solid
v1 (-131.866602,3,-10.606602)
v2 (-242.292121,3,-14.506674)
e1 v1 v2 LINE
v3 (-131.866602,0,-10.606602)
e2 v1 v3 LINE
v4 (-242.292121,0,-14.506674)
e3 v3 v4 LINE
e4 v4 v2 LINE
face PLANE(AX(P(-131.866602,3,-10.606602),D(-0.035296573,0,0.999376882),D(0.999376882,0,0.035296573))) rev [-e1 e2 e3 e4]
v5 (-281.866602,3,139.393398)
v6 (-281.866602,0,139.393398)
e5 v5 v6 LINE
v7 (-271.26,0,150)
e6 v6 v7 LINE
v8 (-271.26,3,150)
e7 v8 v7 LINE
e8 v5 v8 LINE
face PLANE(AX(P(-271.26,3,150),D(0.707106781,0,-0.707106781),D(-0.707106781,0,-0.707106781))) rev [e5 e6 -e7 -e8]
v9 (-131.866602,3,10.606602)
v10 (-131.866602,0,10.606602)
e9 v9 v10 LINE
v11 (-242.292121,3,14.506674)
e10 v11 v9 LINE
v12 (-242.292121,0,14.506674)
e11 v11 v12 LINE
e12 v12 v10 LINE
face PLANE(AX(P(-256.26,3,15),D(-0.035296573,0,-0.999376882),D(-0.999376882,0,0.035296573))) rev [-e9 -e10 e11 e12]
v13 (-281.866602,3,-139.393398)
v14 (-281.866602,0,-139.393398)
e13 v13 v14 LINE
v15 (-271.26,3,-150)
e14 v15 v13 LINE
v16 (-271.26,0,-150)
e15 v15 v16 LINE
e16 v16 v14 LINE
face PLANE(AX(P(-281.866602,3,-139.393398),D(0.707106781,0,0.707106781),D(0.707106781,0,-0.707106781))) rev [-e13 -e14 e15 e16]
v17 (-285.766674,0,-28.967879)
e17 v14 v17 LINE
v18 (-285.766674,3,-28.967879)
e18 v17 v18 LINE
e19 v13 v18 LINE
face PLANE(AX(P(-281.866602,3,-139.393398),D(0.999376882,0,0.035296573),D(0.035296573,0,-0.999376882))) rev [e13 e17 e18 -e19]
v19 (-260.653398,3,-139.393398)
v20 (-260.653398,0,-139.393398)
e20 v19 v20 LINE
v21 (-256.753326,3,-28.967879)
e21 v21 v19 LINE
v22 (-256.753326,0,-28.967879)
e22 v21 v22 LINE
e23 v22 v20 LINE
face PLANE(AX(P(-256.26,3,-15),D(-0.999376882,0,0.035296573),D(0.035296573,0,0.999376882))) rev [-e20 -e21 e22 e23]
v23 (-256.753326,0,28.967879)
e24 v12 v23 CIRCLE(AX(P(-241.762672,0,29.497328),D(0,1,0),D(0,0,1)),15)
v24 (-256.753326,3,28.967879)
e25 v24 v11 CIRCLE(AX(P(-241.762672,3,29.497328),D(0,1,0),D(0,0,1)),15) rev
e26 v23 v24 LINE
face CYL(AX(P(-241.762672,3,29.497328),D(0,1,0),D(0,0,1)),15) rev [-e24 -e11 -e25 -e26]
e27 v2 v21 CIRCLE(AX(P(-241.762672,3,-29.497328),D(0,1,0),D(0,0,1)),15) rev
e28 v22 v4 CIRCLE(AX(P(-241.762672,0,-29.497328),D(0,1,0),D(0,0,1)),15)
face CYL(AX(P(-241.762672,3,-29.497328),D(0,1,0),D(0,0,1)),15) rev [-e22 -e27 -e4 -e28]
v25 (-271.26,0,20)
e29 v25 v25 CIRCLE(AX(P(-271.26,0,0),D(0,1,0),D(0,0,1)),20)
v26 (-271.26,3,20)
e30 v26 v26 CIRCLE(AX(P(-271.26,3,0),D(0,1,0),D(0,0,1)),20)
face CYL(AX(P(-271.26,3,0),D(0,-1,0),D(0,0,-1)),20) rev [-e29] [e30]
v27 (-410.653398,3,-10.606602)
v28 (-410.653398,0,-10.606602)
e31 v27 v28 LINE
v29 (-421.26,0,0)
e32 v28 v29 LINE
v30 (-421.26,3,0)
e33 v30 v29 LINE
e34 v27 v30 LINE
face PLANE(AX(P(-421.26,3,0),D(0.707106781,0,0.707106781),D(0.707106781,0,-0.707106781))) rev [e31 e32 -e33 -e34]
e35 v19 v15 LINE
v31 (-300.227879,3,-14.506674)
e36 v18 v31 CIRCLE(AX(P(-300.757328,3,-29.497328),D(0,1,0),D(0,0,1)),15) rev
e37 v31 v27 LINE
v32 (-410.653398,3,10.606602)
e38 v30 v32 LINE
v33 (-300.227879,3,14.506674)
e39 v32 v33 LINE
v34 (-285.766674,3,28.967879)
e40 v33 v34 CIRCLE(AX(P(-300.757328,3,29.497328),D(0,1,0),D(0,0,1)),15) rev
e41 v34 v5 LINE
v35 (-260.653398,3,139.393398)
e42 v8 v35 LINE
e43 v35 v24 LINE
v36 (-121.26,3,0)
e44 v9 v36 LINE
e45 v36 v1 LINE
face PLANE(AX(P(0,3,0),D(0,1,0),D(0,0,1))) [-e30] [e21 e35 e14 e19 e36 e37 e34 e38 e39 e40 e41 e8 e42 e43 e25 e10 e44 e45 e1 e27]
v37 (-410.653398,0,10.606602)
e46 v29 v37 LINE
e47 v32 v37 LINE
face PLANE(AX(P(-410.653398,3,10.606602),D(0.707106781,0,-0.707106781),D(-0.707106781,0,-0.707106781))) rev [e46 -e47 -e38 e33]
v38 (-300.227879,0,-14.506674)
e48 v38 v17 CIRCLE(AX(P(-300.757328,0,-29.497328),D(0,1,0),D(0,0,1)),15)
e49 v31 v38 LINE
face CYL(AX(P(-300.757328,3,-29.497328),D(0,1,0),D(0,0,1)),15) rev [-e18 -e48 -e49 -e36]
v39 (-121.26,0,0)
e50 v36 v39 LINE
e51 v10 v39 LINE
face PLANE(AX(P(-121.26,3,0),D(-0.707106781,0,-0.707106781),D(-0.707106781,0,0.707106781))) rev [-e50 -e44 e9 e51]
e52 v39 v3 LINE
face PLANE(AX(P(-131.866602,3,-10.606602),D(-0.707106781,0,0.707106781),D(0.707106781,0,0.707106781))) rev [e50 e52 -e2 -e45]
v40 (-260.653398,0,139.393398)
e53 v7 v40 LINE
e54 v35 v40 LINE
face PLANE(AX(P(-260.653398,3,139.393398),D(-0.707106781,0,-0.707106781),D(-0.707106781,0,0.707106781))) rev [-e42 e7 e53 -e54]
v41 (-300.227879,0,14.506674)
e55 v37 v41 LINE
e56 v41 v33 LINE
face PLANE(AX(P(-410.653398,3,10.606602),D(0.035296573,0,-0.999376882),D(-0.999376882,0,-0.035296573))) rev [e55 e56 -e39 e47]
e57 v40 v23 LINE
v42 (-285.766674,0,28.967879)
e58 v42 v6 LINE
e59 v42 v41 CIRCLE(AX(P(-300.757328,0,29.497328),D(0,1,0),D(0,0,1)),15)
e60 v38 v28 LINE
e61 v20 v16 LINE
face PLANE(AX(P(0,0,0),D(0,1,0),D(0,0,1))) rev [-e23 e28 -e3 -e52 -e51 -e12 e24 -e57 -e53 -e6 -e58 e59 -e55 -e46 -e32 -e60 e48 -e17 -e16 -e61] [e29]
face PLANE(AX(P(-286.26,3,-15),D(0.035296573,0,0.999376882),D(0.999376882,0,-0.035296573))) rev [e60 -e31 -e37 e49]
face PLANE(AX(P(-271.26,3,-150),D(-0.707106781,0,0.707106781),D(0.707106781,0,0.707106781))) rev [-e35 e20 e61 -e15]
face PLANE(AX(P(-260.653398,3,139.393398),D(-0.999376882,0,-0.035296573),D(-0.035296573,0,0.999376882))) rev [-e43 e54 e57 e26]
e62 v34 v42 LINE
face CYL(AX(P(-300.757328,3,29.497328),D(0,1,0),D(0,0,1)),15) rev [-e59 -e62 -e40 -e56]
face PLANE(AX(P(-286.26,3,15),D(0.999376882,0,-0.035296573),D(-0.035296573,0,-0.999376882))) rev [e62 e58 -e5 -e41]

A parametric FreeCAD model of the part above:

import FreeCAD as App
import Part
import Sketcher

V = App.Vector
Q = App.Units.Quantity


def edges_at(feature, points):
    """Names of the edges that pass closest to the given points."""
    edges = feature.Shape.Edges
    near = lambda p: min(range(len(edges)), key=lambda i: edges[i].distToShape(Part.Vertex(*p))[0])
    return sorted({f"Edge{near(p) + 1}" for p in points})


def add_polygon(sketch, points):
    """Adds a closed chain of lines whose ends are joined by coincident constraints."""
    first, n = sketch.GeometryCount, len(points)
    for a, b in zip(points, points[1:] + points[:1]):
        sketch.addGeometry(Part.LineSegment(App.Vector(*a, 0), App.Vector(*b, 0)), False)
    for i in range(n):
        sketch.addConstraint(Sketcher.Constraint("Coincident", first + i, 2, first + (i + 1) % n, 1))

doc = App.newDocument("Part")
body = doc.addObject("PartDesign::Body", "Body")

# Sketch on XZ plane
sketch1 = body.newObject("Sketcher::SketchObject", "Sketch")
sketch1.AttachmentSupport = (doc.getObject("XZ_Plane"), [""])
sketch1.MapMode = "FlatFace"
add_polygon(sketch1, [(-286, -15), (-411, -11), (-421, 0), (-411, 11), (-286, 15), (-282, 139), (-271, 150), (-261, 139), (-256, 15), (-132, 11), (-121, 0), (-132, -11), (-256, -15), (-261, -139), (-271, -150), (-282, -139)])  # lines 0-15
sketch1.addGeometry(Part.Circle(V(-271, 0, 0), V(0, 0, 1), 20), False)  # 16
sketch1.addConstraint([
    Sketcher.Constraint("Symmetric", 0, 2, 2, 2, -1),
    Sketcher.Constraint("Symmetric", 8, 2, 10, 2, -1),
    Sketcher.Constraint("Symmetric", 7, 2, 11, 2, -1),
    Sketcher.Constraint("Symmetric", 6, 2, 12, 2, -1),
    Sketcher.Constraint("Symmetric", 5, 2, 13, 2, -1),
    Sketcher.Constraint("Symmetric", 4, 2, 14, 2, -1),
    Sketcher.Constraint("Symmetric", 3, 2, 15, 2, -1),
    Sketcher.Constraint("PointOnObject", 16, 3, -1),
    Sketcher.Constraint("PointOnObject", 1, 2, -1),
    Sketcher.Constraint("PointOnObject", 9, 2, -1),
    Sketcher.Constraint("Perpendicular", 1, 2),
    Sketcher.Constraint("Perpendicular", 0, 4),
    Sketcher.Constraint("Parallel", 2, 5),
    Sketcher.Constraint("Perpendicular", 5, 6),
    Sketcher.Constraint("Perpendicular", 3, 7),
    Sketcher.Constraint("Perpendicular", 4, 8),
    Sketcher.Constraint("Parallel", 6, 9),
    Sketcher.Constraint("Horizontal", 4, 2, 6, 2),
    Sketcher.Constraint("Horizontal", 3, 2, 7, 2),
    Sketcher.Constraint("Horizontal", 2, 2, 8, 2),
    Sketcher.Constraint("Vertical", 16, 3, 5, 2),
    Sketcher.Constraint("Equal", 3, 4),
    Sketcher.Constraint("Equal", 2, 5),
    Sketcher.Constraint("Diameter", 16, Q("40 mm")),
    Sketcher.Constraint("Distance", 1, Q("15 mm")),
    Sketcher.Constraint("DistanceY", -1, 1, 3, 2, Q("15 mm")),
    Sketcher.Constraint("DistanceY", -1, 1, 5, 2, Q("150 mm")),
    Sketcher.Constraint("DistanceX", 16, 3, -1, 1, Q("271.26 mm")),
])
pad1 = body.newObject("PartDesign::Pad", "Pad")
pad1.Profile = sketch1
pad1.Length = 3
pad1.Reversed = True
doc.recompute()

fillet = body.newObject("PartDesign::Fillet", "Fillet")
fillet.Base = (pad1, edges_at(pad1, [
    (-256.26, 1.5, -15),
    (-256.26, 1.5, 15),
    (-286.26, 1.5, 15),
    (-286.26, 1.5, -15),
]))
fillet.Radius = 15

doc.recompute()
